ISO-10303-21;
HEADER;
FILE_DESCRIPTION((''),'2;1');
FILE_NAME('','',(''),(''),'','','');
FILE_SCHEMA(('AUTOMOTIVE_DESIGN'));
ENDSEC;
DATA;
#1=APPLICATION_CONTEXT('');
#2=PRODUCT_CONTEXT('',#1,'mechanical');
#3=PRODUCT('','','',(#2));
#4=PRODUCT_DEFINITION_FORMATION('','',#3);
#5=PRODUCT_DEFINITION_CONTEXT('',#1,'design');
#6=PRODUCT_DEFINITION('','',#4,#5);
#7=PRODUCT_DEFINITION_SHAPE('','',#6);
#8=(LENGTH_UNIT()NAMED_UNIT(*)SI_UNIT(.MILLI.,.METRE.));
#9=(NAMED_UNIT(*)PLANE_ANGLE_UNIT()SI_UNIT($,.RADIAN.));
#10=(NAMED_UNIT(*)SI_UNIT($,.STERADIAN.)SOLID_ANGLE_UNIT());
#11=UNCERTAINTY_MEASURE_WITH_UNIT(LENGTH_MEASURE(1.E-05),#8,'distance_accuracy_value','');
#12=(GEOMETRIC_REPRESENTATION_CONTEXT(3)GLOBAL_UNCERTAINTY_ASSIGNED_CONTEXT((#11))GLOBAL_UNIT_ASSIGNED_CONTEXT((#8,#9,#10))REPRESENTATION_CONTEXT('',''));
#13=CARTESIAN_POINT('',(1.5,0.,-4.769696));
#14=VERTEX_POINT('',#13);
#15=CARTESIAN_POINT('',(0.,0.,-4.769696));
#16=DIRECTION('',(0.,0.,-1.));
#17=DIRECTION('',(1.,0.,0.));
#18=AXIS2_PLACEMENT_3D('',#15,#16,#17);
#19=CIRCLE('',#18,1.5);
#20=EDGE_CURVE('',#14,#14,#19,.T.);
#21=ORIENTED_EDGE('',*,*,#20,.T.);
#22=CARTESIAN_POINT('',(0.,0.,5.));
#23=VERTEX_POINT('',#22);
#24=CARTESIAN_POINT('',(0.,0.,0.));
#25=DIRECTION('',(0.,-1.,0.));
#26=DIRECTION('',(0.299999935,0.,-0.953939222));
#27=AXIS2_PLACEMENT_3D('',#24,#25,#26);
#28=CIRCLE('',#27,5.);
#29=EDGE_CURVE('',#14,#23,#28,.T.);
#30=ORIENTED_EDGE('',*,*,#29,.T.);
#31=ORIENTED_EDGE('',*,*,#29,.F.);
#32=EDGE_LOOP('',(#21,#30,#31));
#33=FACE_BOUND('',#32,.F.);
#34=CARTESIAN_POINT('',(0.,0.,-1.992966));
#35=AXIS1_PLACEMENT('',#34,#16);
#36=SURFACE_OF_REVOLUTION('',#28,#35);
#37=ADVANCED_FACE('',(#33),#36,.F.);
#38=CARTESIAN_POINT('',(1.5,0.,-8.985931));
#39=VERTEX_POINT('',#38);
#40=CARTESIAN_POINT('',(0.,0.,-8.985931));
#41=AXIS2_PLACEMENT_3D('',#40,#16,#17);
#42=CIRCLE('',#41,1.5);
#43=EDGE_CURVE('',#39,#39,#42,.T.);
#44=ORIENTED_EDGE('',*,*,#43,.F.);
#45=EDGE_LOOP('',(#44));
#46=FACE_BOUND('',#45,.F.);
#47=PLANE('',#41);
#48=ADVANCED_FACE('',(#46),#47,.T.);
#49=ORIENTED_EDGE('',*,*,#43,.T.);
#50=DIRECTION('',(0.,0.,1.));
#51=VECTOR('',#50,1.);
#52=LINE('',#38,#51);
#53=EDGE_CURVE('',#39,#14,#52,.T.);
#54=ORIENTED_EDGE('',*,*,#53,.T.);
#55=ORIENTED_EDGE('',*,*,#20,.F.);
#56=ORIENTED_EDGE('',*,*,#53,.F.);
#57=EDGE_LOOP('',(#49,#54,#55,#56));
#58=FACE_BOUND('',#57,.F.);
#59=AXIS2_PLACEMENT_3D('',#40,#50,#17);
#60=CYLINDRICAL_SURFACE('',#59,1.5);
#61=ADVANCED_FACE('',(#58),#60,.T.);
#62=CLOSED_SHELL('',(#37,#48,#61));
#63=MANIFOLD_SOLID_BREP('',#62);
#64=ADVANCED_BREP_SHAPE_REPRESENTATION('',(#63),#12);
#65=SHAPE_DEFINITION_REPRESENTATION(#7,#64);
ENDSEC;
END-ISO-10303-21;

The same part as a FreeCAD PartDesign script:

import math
import FreeCAD as App
import Part
import Sketcher
from FreeCAD import Vector
Q = App.Units.Quantity

doc = App.newDocument("Part")
params = doc.addObject("Spreadsheet::Sheet", "Params")
for row, (alias, value) in enumerate([
    ("sketch1_radius", "5 mm"),
    ("sketch1_width", "1.5 mm"),
    ("revolution_angle", "360 deg"),
], start=1):
    params.set(f"A{row}", alias)
    params.set(f"B{row}", "=" + value)
    params.setAlias(f"B{row}", alias)

body = doc.addObject("PartDesign::Body", "Body")

# Sketch on XZ plane
sketch1 = doc.addObject("Sketcher::SketchObject", "Sketch")
body.addObject(sketch1)
sketch1.AttachmentSupport = (doc.XZ_Plane, [""])
sketch1.MapMode = "FlatFace"
sketch1.addGeometry(Part.LineSegment(Vector(1.5, -9, 0), Vector(1.5, -4.8, 0)), False)
sketch1.addGeometry(Part.ArcOfCircle(Part.Circle(Vector(0, 0, 0), Vector(0, 0, 1), 5), math.radians(-73), math.radians(90)), False)
sketch1.addGeometry(Part.LineSegment(Vector(0, 5, 0), Vector(0, -9, 0)), False)
sketch1.addGeometry(Part.LineSegment(Vector(0, -9, 0), Vector(1.5, -9, 0)), False)
sketch1.addConstraint(Sketcher.Constraint("Coincident", 0, 2, 1, 1))
sketch1.addConstraint(Sketcher.Constraint("Coincident", 1, 2, 2, 1))
sketch1.addConstraint(Sketcher.Constraint("Coincident", 2, 2, 3, 1))
sketch1.addConstraint(Sketcher.Constraint("Coincident", 3, 2, 0, 1))
sketch1.addConstraint(Sketcher.Constraint("Vertical", 0))
sketch1.addConstraint(Sketcher.Constraint("Vertical", 2))
sketch1.addConstraint(Sketcher.Constraint("Horizontal", 3))
sketch1.addConstraint(Sketcher.Constraint("Coincident", 1, 3, -1, 1))
sketch1.addConstraint(Sketcher.Constraint("PointOnObject", 1, 2, -2))
sketch1.addConstraint(Sketcher.Constraint("Radius", 1, Q("5 mm")))
sketch1.addConstraint(Sketcher.Constraint("DistanceX", 3, 1, 3, 2, Q("1.5 mm")))
sketch1.addConstraint(Sketcher.Constraint("DistanceY", 2, 2, 2, 1, Q("13.985931 mm")))
sketch1.setExpression("Constraints[9]", "Params.sketch1_radius")
sketch1.setExpression("Constraints[10]", "Params.sketch1_width")
revolution = doc.addObject("PartDesign::Revolution", "Revolution")
body.addObject(revolution)
revolution.Profile = sketch1
revolution.ReferenceAxis = (sketch1, ["V_Axis"])
revolution.setExpression("Angle", "Params.revolution_angle")

doc.recompute()
